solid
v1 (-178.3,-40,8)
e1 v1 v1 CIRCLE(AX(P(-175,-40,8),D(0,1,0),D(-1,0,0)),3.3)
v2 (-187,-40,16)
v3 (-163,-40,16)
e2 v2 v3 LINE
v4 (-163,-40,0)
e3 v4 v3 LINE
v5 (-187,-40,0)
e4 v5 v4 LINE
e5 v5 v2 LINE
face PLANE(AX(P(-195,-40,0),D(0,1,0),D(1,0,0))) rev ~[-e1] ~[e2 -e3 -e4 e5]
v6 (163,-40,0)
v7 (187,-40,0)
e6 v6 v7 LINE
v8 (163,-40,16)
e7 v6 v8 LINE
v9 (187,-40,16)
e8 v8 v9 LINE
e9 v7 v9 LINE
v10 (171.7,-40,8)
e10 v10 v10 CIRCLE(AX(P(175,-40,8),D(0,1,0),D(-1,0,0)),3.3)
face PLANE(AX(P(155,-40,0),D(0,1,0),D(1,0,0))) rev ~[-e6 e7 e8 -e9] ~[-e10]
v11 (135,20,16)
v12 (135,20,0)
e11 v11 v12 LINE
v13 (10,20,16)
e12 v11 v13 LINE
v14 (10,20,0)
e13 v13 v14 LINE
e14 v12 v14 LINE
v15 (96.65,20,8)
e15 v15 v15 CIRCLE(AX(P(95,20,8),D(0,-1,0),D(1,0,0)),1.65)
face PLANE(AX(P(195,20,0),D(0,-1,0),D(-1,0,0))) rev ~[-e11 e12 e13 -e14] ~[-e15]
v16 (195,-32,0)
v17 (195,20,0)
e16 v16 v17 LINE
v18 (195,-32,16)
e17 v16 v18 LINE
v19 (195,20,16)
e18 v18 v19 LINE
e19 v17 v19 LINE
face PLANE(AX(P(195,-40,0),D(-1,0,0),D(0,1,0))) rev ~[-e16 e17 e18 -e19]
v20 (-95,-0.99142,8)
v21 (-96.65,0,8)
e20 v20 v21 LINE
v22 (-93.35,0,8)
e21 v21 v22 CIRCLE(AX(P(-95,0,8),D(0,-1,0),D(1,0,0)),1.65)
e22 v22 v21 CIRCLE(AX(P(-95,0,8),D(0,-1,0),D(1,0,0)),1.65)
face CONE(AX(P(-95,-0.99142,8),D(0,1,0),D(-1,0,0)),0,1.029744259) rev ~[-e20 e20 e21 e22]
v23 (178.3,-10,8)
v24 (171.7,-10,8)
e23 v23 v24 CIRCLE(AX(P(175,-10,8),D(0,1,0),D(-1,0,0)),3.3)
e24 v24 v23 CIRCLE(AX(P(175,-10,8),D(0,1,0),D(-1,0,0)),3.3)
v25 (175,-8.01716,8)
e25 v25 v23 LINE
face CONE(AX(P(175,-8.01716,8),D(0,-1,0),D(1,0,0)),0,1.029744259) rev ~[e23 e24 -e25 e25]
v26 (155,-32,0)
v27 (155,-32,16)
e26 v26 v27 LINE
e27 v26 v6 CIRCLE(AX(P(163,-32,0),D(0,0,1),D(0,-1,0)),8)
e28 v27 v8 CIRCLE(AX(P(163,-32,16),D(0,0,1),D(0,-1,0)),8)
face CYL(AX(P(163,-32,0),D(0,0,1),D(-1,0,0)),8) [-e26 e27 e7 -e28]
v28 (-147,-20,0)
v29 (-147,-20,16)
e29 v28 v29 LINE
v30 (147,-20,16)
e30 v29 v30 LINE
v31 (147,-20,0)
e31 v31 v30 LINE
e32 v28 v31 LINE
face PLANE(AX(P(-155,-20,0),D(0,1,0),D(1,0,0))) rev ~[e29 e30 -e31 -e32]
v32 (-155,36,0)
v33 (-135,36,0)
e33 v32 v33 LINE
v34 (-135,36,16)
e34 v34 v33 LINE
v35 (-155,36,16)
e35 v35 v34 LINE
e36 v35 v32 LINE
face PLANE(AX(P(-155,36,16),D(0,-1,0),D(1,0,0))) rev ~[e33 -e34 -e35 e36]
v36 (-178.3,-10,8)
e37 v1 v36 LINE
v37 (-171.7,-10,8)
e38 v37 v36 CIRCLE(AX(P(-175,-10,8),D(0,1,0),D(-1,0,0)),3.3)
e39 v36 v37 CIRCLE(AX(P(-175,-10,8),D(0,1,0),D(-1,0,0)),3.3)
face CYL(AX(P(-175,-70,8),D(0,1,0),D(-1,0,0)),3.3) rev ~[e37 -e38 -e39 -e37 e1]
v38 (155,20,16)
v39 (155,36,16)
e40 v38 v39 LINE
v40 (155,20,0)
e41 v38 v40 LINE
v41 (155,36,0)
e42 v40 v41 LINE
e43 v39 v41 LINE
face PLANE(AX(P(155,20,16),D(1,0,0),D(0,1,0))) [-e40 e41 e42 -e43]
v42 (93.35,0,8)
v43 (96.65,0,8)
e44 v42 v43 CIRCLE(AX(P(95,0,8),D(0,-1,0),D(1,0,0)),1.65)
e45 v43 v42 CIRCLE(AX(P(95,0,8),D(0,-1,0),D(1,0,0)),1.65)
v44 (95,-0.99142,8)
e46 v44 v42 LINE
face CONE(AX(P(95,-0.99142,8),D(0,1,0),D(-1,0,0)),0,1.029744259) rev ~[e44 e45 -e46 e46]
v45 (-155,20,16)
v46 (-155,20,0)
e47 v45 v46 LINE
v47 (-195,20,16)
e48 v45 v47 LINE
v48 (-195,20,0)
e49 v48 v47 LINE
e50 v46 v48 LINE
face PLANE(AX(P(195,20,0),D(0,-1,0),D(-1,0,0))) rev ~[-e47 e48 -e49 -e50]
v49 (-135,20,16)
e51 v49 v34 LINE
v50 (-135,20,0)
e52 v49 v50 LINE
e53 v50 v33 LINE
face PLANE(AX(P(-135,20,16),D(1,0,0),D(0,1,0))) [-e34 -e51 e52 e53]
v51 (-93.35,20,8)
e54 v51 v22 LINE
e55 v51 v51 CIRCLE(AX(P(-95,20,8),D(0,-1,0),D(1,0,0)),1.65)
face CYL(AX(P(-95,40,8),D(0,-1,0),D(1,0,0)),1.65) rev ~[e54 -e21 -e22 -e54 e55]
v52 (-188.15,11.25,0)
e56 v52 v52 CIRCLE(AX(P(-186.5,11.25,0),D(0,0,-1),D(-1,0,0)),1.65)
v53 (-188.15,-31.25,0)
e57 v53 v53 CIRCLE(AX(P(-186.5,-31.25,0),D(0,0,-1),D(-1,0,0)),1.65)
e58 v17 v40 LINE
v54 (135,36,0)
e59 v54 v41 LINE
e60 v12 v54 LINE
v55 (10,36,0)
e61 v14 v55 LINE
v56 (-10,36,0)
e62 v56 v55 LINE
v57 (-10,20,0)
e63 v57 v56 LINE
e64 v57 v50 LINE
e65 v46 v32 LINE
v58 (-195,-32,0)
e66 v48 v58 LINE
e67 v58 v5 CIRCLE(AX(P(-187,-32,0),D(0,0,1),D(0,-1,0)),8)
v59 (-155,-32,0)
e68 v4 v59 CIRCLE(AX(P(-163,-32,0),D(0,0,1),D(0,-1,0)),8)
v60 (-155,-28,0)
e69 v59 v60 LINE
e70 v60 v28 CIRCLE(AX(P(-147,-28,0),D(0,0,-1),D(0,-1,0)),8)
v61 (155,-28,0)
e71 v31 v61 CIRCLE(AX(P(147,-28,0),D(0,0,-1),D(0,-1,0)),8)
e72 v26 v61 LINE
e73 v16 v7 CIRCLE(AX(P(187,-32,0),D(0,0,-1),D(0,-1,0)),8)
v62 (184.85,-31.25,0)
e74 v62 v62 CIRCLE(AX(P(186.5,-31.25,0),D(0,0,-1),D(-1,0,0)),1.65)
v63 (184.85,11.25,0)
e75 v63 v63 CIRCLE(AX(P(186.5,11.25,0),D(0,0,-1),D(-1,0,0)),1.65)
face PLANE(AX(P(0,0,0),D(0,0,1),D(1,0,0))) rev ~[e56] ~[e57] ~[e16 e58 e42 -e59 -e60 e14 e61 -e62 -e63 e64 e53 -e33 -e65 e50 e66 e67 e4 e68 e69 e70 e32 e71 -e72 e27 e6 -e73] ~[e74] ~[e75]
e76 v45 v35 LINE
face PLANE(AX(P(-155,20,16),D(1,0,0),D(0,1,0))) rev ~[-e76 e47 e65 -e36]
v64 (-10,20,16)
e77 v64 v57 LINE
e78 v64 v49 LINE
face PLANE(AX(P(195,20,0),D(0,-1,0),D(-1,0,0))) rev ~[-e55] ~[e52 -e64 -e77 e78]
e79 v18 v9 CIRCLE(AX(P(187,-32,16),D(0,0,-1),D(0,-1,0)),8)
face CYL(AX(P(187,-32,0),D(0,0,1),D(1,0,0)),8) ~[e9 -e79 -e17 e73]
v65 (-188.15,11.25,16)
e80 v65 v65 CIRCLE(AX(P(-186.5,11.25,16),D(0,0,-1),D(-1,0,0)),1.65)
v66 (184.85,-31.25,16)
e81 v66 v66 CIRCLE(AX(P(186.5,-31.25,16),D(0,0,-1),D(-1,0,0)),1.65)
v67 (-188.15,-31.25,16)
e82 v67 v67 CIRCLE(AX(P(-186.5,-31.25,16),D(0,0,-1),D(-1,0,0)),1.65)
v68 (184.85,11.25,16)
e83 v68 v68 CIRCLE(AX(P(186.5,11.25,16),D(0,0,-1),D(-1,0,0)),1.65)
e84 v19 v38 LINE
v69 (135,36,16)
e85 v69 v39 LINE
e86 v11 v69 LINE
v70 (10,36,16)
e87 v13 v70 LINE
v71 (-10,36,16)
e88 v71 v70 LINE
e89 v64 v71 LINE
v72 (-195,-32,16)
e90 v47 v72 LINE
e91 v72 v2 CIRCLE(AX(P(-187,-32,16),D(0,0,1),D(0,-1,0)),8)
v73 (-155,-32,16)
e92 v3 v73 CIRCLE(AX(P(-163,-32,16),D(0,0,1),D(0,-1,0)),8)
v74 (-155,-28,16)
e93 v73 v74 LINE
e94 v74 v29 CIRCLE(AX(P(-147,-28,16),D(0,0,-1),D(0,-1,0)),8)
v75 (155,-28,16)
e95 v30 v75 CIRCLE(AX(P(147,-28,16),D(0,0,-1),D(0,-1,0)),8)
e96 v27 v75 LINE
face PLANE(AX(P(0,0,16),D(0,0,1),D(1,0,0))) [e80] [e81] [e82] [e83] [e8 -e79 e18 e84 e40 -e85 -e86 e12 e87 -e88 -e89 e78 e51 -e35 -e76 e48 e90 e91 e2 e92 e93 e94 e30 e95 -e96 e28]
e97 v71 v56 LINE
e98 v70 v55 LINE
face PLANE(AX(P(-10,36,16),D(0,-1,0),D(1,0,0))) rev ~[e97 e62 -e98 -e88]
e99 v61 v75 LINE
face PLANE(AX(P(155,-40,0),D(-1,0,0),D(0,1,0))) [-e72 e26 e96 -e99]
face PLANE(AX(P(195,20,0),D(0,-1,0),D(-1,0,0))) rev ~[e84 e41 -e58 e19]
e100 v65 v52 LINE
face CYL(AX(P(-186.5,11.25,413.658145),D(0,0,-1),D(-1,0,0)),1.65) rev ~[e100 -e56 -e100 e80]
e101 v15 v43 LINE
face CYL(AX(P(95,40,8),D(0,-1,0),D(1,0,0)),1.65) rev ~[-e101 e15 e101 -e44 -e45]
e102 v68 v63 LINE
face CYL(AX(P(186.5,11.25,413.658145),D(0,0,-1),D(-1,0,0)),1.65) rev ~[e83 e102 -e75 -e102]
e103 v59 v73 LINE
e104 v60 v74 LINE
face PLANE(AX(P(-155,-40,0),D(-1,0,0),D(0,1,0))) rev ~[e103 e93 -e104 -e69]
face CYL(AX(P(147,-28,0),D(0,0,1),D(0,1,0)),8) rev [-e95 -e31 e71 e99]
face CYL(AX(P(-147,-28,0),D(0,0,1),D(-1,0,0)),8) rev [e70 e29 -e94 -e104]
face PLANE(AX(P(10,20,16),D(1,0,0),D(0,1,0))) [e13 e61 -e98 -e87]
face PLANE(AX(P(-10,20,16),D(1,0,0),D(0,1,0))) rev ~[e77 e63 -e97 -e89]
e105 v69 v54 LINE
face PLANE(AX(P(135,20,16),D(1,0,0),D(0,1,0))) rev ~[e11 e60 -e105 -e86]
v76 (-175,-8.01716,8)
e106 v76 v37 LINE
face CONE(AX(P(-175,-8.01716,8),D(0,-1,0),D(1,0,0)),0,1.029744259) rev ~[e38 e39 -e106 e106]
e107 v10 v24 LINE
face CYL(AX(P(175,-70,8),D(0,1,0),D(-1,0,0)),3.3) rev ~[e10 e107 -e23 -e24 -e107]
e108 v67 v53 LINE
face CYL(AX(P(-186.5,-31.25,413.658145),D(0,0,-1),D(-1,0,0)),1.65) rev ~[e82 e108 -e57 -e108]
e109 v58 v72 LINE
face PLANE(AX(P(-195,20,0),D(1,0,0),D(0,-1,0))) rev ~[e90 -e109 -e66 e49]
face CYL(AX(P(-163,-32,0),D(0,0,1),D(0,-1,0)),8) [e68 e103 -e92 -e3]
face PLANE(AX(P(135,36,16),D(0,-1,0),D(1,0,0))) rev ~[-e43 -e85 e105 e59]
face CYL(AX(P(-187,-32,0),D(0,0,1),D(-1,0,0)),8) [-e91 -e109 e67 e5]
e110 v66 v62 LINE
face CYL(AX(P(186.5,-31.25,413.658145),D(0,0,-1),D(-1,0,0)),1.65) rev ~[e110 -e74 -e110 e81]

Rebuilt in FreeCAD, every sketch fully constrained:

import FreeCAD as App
import Part
import Sketcher

V = App.Vector


def edges_at(feature, points):
    """Names of the edges that pass closest to the given points."""
    edges = feature.Shape.Edges
    near = lambda p: min(range(len(edges)), key=lambda i: edges[i].distToShape(Part.Vertex(*p))[0])
    return sorted({f"Edge{near(p) + 1}" for p in points})


def add_polygon(sketch, points):
    """Adds a closed chain of lines whose ends are joined by coincident constraints."""
    first, n = sketch.GeometryCount, len(points)
    for a, b in zip(points, points[1:] + points[:1]):
        sketch.addGeometry(Part.LineSegment(App.Vector(*a, 0), App.Vector(*b, 0)), False)
    for i in range(n):
        sketch.addConstraint(Sketcher.Constraint("Coincident", first + i, 2, first + (i + 1) % n, 1))

doc = App.newDocument("Part")
params = doc.addObject("Spreadsheet::Sheet", "Params")
for row, (alias, value) in enumerate([
    ("sketch1_width", "390 mm"),
    ("sketch1_width2", "40 mm"),
    ("sketch1_height", "60 mm"),
    ("sketch1_height2", "20 mm"),
    ("pad1_length", "16 mm"),
    ("sketch2_width", "20 mm"),
    ("sketch2_height", "16 mm"),
    ("pad2_length", "16 mm"),
    ("sketch3_diameter", "6.6 mm"),
    ("hole_diameter", "6.6 mm"),
    ("hole_depth", "30 mm"),
    ("fillet_radius", "8 mm"),
    ("sketch4_diameter", "3.3 mm"),
    ("hole2_diameter", "3.3 mm"),
    ("hole2_depth", "20 mm"),
    ("sketch5_diameter", "3.3 mm"),
    ("hole3_diameter", "3.3 mm"),
], start=1):
    params.set(f"A{row}", alias)
    params.set(f"B{row}", "=" + value)
    params.setAlias(f"B{row}", alias)

body = doc.addObject("PartDesign::Body", "Body")

sketch1 = doc.addObject("Sketcher::SketchObject", "Sketch")
body.addObject(sketch1)
sketch1.AttachmentSupport = (doc.XY_Plane, [""])
sketch1.MapMode = "FlatFace"
add_polygon(sketch1, [(195, 20), (-195, 20), (-195, -40), (-155, -40), (-155, -20), (155, -20), (155, -40), (195, -40)])
sketch1.addConstraint([
    Sketcher.Constraint("Horizontal", 0),
    Sketcher.Constraint("Vertical", 1),
    Sketcher.Constraint("Horizontal", 2),
    Sketcher.Constraint("Vertical", 3),
    Sketcher.Constraint("Horizontal", 4),
    Sketcher.Constraint("Vertical", 5),
    Sketcher.Constraint("Horizontal", 6),
    Sketcher.Constraint("Vertical", 7),
    Sketcher.Constraint("Symmetric", 2, 2, 5, 2, -2),
    Sketcher.Constraint("Equal", 2, 6),
    Sketcher.Constraint("DistanceX", 0, 2, 0, 1, 390.0),
    Sketcher.Constraint("DistanceX", 2, 1, 2, 2, 40.0),
    Sketcher.Constraint("DistanceY", 1, 2, 1, 1, 60.0),
    Sketcher.Constraint("DistanceY", 3, 1, 3, 2, 20.0),
    Sketcher.Constraint("DistanceY", -1, 1, 0, 2, 20.0),
])
sketch1.setExpression("Constraints[18]", "Params.sketch1_width")
sketch1.setExpression("Constraints[19]", "Params.sketch1_width2")
sketch1.setExpression("Constraints[20]", "Params.sketch1_height")
sketch1.setExpression("Constraints[21]", "Params.sketch1_height2")
pad1 = doc.addObject("PartDesign::Pad", "Pad")
body.addObject(pad1)
pad1.Profile = sketch1
pad1.setExpression("Length", "Params.pad1_length")

sketch2 = doc.addObject("Sketcher::SketchObject", "Sketch001")
body.addObject(sketch2)
sketch2.AttachmentSupport = (doc.XY_Plane, [""])
sketch2.MapMode = "FlatFace"
sketch2.AttachmentOffset = App.Placement(V(0, 0, 16), App.Rotation())
add_polygon(sketch2, [(135, 36), (135, 20), (155, 20), (155, 36)])
add_polygon(sketch2, [(-10, 36), (-10, 20), (10, 20), (10, 36)])
add_polygon(sketch2, [(-155, 36), (-155, 20), (-135, 20), (-135, 36)])
sketch2.addConstraint([
    Sketcher.Constraint("Vertical", 0),
    Sketcher.Constraint("Horizontal", 1),
    Sketcher.Constraint("Vertical", 2),
    Sketcher.Constraint("Horizontal", 3),
    Sketcher.Constraint("Vertical", 4),
    Sketcher.Constraint("Horizontal", 5),
    Sketcher.Constraint("Vertical", 6),
    Sketcher.Constraint("Horizontal", 7),
    Sketcher.Constraint("Vertical", 8),
    Sketcher.Constraint("Horizontal", 9),
    Sketcher.Constraint("Vertical", 10),
    Sketcher.Constraint("Horizontal", 11),
    Sketcher.Constraint("Symmetric", 1, 2, 8, 2, -2),
    Sketcher.Constraint("Symmetric", 3, 2, 10, 2, -2),
    Sketcher.Constraint("Horizontal", 1, 2, 4, 2),
    Sketcher.Constraint("Horizontal", 3, 2, 6, 2),
    Sketcher.Constraint("Equal", 3, 5),
    Sketcher.Constraint("DistanceX", 1, 1, 1, 2, 20.0),
    Sketcher.Constraint("DistanceY", 0, 2, 0, 1, 16.0),
    Sketcher.Constraint("DistanceX", -1, 1, 0, 2, 135.0),
    Sketcher.Constraint("DistanceY", -1, 1, 0, 2, 20.0),
    Sketcher.Constraint("DistanceX", 4, 2, -1, 1, 10.0),
])
sketch2.setExpression("Constraints[29]", "Params.sketch2_width")
sketch2.setExpression("Constraints[30]", "Params.sketch2_height")
pad2 = doc.addObject("PartDesign::Pad", "Pad001")
body.addObject(pad2)
pad2.Profile = sketch2
pad2.setExpression("Length", "Params.pad2_length")
pad2.Reversed = True

sketch3 = doc.addObject("Sketcher::SketchObject", "Sketch002")
body.addObject(sketch3)
sketch3.AttachmentSupport = (doc.XZ_Plane, [""])
sketch3.MapMode = "FlatFace"
sketch3.AttachmentOffset = App.Placement(V(0, 0, 40), App.Rotation())
sketch3.addGeometry([
    Part.Circle(V(-175, 8, 0), V(0, 0, 1), 3.3),
    Part.Circle(V(175, 8, 0), V(0, 0, 1), 3.3),
], False)
sketch3.addConstraint([
    Sketcher.Constraint("Equal", 0, 1),
    Sketcher.Constraint("Symmetric", 0, 3, 1, 3, -2),
    Sketcher.Constraint("Diameter", 0, 6.6),
    Sketcher.Constraint("DistanceX", 0, 3, -1, 1, 175.0),
    Sketcher.Constraint("DistanceY", -1, 1, 0, 3, 8.0),
])
sketch3.setExpression("Constraints[2]", "Params.sketch3_diameter")
doc.recompute()
hole = doc.addObject("PartDesign::Hole", "Hole")
body.addObject(hole)
hole.Profile = sketch3
hole.ThreadType = "None"
hole.setExpression("Diameter", "Params.hole_diameter")
hole.DepthType = "Dimension"
hole.setExpression("Depth", "Params.hole_depth")
hole.DrillPoint = "Angled"
hole.DrillPointAngle = 118
doc.recompute()

fillet = doc.addObject("PartDesign::Fillet", "Fillet")
body.addObject(fillet)
fillet.Base = (hole, edges_at(hole, [
    (-155, -40, 8),
    (-155, -20, 8),
    (-195, -40, 8),
    (195, -40, 8),
    (155, -40, 8),
    (155, -20, 8),
]))
fillet.setExpression("Radius", "Params.fillet_radius")

sketch4 = doc.addObject("Sketcher::SketchObject", "Sketch003")
body.addObject(sketch4)
sketch4.AttachmentSupport = (doc.XZ_Plane, [""])
sketch4.MapMode = "FlatFace"
sketch4.AttachmentOffset = App.Placement(V(0, 0, -20), App.Rotation())
sketch4.addGeometry([
    Part.Circle(V(-95, 8, 0), V(0, 0, 1), 1.6),
    Part.Circle(V(95, 8, 0), V(0, 0, 1), 1.6),
], False)
sketch4.addConstraint([
    Sketcher.Constraint("Equal", 0, 1),
    Sketcher.Constraint("Symmetric", 0, 3, 1, 3, -2),
    Sketcher.Constraint("Diameter", 0, 3.3),
    Sketcher.Constraint("DistanceX", 0, 3, -1, 1, 95.0),
    Sketcher.Constraint("DistanceY", -1, 1, 0, 3, 8.0),
])
sketch4.setExpression("Constraints[2]", "Params.sketch4_diameter")
doc.recompute()
hole2 = doc.addObject("PartDesign::Hole", "Hole001")
body.addObject(hole2)
hole2.Profile = sketch4
hole2.ThreadType = "None"
hole2.setExpression("Diameter", "Params.hole2_diameter")
hole2.DepthType = "Dimension"
hole2.setExpression("Depth", "Params.hole2_depth")
hole2.DrillPoint = "Angled"
hole2.DrillPointAngle = 118
hole2.Reversed = True

sketch5 = doc.addObject("Sketcher::SketchObject", "Sketch004")
body.addObject(sketch5)
sketch5.AttachmentSupport = (doc.XY_Plane, [""])
sketch5.MapMode = "FlatFace"
sketch5.AttachmentOffset = App.Placement(V(0, 0, 16), App.Rotation())
sketch5.addGeometry([
    Part.Circle(V(-186.5, 11.2, 0), V(0, 0, 1), 1.6),
    Part.Circle(V(-186.5, -31.2, 0), V(0, 0, 1), 1.6),
    Part.Circle(V(186.5, 11.2, 0), V(0, 0, 1), 1.6),
    Part.Circle(V(186.5, -31.2, 0), V(0, 0, 1), 1.6),
], False)
sketch5.addConstraint([
    Sketcher.Constraint("Equal", 0, 1),
    Sketcher.Constraint("Equal", 1, 2),
    Sketcher.Constraint("Equal", 2, 3),
    Sketcher.Constraint("Symmetric", 0, 3, 2, 3, -2),
    Sketcher.Constraint("Symmetric", 1, 3, 3, 3, -2),
    Sketcher.Constraint("Vertical", 0, 3, 1, 3),
    Sketcher.Constraint("Diameter", 0, 3.3),
    Sketcher.Constraint("DistanceX", 0, 3, 2, 3, 373.0),
    Sketcher.Constraint("DistanceY", 1, 3, 0, 3, 42.5),
    Sketcher.Constraint("DistanceY", -1, 1, 0, 3, 11.25),
])
sketch5.setExpression("Constraints[6]", "Params.sketch5_diameter")
doc.recompute()
hole3 = doc.addObject("PartDesign::Hole", "Hole002")
body.addObject(hole3)
hole3.Profile = sketch5
hole3.ThreadType = "None"
hole3.setExpression("Diameter", "Params.hole3_diameter")
hole3.DepthType = "ThroughAll"

doc.recompute()
